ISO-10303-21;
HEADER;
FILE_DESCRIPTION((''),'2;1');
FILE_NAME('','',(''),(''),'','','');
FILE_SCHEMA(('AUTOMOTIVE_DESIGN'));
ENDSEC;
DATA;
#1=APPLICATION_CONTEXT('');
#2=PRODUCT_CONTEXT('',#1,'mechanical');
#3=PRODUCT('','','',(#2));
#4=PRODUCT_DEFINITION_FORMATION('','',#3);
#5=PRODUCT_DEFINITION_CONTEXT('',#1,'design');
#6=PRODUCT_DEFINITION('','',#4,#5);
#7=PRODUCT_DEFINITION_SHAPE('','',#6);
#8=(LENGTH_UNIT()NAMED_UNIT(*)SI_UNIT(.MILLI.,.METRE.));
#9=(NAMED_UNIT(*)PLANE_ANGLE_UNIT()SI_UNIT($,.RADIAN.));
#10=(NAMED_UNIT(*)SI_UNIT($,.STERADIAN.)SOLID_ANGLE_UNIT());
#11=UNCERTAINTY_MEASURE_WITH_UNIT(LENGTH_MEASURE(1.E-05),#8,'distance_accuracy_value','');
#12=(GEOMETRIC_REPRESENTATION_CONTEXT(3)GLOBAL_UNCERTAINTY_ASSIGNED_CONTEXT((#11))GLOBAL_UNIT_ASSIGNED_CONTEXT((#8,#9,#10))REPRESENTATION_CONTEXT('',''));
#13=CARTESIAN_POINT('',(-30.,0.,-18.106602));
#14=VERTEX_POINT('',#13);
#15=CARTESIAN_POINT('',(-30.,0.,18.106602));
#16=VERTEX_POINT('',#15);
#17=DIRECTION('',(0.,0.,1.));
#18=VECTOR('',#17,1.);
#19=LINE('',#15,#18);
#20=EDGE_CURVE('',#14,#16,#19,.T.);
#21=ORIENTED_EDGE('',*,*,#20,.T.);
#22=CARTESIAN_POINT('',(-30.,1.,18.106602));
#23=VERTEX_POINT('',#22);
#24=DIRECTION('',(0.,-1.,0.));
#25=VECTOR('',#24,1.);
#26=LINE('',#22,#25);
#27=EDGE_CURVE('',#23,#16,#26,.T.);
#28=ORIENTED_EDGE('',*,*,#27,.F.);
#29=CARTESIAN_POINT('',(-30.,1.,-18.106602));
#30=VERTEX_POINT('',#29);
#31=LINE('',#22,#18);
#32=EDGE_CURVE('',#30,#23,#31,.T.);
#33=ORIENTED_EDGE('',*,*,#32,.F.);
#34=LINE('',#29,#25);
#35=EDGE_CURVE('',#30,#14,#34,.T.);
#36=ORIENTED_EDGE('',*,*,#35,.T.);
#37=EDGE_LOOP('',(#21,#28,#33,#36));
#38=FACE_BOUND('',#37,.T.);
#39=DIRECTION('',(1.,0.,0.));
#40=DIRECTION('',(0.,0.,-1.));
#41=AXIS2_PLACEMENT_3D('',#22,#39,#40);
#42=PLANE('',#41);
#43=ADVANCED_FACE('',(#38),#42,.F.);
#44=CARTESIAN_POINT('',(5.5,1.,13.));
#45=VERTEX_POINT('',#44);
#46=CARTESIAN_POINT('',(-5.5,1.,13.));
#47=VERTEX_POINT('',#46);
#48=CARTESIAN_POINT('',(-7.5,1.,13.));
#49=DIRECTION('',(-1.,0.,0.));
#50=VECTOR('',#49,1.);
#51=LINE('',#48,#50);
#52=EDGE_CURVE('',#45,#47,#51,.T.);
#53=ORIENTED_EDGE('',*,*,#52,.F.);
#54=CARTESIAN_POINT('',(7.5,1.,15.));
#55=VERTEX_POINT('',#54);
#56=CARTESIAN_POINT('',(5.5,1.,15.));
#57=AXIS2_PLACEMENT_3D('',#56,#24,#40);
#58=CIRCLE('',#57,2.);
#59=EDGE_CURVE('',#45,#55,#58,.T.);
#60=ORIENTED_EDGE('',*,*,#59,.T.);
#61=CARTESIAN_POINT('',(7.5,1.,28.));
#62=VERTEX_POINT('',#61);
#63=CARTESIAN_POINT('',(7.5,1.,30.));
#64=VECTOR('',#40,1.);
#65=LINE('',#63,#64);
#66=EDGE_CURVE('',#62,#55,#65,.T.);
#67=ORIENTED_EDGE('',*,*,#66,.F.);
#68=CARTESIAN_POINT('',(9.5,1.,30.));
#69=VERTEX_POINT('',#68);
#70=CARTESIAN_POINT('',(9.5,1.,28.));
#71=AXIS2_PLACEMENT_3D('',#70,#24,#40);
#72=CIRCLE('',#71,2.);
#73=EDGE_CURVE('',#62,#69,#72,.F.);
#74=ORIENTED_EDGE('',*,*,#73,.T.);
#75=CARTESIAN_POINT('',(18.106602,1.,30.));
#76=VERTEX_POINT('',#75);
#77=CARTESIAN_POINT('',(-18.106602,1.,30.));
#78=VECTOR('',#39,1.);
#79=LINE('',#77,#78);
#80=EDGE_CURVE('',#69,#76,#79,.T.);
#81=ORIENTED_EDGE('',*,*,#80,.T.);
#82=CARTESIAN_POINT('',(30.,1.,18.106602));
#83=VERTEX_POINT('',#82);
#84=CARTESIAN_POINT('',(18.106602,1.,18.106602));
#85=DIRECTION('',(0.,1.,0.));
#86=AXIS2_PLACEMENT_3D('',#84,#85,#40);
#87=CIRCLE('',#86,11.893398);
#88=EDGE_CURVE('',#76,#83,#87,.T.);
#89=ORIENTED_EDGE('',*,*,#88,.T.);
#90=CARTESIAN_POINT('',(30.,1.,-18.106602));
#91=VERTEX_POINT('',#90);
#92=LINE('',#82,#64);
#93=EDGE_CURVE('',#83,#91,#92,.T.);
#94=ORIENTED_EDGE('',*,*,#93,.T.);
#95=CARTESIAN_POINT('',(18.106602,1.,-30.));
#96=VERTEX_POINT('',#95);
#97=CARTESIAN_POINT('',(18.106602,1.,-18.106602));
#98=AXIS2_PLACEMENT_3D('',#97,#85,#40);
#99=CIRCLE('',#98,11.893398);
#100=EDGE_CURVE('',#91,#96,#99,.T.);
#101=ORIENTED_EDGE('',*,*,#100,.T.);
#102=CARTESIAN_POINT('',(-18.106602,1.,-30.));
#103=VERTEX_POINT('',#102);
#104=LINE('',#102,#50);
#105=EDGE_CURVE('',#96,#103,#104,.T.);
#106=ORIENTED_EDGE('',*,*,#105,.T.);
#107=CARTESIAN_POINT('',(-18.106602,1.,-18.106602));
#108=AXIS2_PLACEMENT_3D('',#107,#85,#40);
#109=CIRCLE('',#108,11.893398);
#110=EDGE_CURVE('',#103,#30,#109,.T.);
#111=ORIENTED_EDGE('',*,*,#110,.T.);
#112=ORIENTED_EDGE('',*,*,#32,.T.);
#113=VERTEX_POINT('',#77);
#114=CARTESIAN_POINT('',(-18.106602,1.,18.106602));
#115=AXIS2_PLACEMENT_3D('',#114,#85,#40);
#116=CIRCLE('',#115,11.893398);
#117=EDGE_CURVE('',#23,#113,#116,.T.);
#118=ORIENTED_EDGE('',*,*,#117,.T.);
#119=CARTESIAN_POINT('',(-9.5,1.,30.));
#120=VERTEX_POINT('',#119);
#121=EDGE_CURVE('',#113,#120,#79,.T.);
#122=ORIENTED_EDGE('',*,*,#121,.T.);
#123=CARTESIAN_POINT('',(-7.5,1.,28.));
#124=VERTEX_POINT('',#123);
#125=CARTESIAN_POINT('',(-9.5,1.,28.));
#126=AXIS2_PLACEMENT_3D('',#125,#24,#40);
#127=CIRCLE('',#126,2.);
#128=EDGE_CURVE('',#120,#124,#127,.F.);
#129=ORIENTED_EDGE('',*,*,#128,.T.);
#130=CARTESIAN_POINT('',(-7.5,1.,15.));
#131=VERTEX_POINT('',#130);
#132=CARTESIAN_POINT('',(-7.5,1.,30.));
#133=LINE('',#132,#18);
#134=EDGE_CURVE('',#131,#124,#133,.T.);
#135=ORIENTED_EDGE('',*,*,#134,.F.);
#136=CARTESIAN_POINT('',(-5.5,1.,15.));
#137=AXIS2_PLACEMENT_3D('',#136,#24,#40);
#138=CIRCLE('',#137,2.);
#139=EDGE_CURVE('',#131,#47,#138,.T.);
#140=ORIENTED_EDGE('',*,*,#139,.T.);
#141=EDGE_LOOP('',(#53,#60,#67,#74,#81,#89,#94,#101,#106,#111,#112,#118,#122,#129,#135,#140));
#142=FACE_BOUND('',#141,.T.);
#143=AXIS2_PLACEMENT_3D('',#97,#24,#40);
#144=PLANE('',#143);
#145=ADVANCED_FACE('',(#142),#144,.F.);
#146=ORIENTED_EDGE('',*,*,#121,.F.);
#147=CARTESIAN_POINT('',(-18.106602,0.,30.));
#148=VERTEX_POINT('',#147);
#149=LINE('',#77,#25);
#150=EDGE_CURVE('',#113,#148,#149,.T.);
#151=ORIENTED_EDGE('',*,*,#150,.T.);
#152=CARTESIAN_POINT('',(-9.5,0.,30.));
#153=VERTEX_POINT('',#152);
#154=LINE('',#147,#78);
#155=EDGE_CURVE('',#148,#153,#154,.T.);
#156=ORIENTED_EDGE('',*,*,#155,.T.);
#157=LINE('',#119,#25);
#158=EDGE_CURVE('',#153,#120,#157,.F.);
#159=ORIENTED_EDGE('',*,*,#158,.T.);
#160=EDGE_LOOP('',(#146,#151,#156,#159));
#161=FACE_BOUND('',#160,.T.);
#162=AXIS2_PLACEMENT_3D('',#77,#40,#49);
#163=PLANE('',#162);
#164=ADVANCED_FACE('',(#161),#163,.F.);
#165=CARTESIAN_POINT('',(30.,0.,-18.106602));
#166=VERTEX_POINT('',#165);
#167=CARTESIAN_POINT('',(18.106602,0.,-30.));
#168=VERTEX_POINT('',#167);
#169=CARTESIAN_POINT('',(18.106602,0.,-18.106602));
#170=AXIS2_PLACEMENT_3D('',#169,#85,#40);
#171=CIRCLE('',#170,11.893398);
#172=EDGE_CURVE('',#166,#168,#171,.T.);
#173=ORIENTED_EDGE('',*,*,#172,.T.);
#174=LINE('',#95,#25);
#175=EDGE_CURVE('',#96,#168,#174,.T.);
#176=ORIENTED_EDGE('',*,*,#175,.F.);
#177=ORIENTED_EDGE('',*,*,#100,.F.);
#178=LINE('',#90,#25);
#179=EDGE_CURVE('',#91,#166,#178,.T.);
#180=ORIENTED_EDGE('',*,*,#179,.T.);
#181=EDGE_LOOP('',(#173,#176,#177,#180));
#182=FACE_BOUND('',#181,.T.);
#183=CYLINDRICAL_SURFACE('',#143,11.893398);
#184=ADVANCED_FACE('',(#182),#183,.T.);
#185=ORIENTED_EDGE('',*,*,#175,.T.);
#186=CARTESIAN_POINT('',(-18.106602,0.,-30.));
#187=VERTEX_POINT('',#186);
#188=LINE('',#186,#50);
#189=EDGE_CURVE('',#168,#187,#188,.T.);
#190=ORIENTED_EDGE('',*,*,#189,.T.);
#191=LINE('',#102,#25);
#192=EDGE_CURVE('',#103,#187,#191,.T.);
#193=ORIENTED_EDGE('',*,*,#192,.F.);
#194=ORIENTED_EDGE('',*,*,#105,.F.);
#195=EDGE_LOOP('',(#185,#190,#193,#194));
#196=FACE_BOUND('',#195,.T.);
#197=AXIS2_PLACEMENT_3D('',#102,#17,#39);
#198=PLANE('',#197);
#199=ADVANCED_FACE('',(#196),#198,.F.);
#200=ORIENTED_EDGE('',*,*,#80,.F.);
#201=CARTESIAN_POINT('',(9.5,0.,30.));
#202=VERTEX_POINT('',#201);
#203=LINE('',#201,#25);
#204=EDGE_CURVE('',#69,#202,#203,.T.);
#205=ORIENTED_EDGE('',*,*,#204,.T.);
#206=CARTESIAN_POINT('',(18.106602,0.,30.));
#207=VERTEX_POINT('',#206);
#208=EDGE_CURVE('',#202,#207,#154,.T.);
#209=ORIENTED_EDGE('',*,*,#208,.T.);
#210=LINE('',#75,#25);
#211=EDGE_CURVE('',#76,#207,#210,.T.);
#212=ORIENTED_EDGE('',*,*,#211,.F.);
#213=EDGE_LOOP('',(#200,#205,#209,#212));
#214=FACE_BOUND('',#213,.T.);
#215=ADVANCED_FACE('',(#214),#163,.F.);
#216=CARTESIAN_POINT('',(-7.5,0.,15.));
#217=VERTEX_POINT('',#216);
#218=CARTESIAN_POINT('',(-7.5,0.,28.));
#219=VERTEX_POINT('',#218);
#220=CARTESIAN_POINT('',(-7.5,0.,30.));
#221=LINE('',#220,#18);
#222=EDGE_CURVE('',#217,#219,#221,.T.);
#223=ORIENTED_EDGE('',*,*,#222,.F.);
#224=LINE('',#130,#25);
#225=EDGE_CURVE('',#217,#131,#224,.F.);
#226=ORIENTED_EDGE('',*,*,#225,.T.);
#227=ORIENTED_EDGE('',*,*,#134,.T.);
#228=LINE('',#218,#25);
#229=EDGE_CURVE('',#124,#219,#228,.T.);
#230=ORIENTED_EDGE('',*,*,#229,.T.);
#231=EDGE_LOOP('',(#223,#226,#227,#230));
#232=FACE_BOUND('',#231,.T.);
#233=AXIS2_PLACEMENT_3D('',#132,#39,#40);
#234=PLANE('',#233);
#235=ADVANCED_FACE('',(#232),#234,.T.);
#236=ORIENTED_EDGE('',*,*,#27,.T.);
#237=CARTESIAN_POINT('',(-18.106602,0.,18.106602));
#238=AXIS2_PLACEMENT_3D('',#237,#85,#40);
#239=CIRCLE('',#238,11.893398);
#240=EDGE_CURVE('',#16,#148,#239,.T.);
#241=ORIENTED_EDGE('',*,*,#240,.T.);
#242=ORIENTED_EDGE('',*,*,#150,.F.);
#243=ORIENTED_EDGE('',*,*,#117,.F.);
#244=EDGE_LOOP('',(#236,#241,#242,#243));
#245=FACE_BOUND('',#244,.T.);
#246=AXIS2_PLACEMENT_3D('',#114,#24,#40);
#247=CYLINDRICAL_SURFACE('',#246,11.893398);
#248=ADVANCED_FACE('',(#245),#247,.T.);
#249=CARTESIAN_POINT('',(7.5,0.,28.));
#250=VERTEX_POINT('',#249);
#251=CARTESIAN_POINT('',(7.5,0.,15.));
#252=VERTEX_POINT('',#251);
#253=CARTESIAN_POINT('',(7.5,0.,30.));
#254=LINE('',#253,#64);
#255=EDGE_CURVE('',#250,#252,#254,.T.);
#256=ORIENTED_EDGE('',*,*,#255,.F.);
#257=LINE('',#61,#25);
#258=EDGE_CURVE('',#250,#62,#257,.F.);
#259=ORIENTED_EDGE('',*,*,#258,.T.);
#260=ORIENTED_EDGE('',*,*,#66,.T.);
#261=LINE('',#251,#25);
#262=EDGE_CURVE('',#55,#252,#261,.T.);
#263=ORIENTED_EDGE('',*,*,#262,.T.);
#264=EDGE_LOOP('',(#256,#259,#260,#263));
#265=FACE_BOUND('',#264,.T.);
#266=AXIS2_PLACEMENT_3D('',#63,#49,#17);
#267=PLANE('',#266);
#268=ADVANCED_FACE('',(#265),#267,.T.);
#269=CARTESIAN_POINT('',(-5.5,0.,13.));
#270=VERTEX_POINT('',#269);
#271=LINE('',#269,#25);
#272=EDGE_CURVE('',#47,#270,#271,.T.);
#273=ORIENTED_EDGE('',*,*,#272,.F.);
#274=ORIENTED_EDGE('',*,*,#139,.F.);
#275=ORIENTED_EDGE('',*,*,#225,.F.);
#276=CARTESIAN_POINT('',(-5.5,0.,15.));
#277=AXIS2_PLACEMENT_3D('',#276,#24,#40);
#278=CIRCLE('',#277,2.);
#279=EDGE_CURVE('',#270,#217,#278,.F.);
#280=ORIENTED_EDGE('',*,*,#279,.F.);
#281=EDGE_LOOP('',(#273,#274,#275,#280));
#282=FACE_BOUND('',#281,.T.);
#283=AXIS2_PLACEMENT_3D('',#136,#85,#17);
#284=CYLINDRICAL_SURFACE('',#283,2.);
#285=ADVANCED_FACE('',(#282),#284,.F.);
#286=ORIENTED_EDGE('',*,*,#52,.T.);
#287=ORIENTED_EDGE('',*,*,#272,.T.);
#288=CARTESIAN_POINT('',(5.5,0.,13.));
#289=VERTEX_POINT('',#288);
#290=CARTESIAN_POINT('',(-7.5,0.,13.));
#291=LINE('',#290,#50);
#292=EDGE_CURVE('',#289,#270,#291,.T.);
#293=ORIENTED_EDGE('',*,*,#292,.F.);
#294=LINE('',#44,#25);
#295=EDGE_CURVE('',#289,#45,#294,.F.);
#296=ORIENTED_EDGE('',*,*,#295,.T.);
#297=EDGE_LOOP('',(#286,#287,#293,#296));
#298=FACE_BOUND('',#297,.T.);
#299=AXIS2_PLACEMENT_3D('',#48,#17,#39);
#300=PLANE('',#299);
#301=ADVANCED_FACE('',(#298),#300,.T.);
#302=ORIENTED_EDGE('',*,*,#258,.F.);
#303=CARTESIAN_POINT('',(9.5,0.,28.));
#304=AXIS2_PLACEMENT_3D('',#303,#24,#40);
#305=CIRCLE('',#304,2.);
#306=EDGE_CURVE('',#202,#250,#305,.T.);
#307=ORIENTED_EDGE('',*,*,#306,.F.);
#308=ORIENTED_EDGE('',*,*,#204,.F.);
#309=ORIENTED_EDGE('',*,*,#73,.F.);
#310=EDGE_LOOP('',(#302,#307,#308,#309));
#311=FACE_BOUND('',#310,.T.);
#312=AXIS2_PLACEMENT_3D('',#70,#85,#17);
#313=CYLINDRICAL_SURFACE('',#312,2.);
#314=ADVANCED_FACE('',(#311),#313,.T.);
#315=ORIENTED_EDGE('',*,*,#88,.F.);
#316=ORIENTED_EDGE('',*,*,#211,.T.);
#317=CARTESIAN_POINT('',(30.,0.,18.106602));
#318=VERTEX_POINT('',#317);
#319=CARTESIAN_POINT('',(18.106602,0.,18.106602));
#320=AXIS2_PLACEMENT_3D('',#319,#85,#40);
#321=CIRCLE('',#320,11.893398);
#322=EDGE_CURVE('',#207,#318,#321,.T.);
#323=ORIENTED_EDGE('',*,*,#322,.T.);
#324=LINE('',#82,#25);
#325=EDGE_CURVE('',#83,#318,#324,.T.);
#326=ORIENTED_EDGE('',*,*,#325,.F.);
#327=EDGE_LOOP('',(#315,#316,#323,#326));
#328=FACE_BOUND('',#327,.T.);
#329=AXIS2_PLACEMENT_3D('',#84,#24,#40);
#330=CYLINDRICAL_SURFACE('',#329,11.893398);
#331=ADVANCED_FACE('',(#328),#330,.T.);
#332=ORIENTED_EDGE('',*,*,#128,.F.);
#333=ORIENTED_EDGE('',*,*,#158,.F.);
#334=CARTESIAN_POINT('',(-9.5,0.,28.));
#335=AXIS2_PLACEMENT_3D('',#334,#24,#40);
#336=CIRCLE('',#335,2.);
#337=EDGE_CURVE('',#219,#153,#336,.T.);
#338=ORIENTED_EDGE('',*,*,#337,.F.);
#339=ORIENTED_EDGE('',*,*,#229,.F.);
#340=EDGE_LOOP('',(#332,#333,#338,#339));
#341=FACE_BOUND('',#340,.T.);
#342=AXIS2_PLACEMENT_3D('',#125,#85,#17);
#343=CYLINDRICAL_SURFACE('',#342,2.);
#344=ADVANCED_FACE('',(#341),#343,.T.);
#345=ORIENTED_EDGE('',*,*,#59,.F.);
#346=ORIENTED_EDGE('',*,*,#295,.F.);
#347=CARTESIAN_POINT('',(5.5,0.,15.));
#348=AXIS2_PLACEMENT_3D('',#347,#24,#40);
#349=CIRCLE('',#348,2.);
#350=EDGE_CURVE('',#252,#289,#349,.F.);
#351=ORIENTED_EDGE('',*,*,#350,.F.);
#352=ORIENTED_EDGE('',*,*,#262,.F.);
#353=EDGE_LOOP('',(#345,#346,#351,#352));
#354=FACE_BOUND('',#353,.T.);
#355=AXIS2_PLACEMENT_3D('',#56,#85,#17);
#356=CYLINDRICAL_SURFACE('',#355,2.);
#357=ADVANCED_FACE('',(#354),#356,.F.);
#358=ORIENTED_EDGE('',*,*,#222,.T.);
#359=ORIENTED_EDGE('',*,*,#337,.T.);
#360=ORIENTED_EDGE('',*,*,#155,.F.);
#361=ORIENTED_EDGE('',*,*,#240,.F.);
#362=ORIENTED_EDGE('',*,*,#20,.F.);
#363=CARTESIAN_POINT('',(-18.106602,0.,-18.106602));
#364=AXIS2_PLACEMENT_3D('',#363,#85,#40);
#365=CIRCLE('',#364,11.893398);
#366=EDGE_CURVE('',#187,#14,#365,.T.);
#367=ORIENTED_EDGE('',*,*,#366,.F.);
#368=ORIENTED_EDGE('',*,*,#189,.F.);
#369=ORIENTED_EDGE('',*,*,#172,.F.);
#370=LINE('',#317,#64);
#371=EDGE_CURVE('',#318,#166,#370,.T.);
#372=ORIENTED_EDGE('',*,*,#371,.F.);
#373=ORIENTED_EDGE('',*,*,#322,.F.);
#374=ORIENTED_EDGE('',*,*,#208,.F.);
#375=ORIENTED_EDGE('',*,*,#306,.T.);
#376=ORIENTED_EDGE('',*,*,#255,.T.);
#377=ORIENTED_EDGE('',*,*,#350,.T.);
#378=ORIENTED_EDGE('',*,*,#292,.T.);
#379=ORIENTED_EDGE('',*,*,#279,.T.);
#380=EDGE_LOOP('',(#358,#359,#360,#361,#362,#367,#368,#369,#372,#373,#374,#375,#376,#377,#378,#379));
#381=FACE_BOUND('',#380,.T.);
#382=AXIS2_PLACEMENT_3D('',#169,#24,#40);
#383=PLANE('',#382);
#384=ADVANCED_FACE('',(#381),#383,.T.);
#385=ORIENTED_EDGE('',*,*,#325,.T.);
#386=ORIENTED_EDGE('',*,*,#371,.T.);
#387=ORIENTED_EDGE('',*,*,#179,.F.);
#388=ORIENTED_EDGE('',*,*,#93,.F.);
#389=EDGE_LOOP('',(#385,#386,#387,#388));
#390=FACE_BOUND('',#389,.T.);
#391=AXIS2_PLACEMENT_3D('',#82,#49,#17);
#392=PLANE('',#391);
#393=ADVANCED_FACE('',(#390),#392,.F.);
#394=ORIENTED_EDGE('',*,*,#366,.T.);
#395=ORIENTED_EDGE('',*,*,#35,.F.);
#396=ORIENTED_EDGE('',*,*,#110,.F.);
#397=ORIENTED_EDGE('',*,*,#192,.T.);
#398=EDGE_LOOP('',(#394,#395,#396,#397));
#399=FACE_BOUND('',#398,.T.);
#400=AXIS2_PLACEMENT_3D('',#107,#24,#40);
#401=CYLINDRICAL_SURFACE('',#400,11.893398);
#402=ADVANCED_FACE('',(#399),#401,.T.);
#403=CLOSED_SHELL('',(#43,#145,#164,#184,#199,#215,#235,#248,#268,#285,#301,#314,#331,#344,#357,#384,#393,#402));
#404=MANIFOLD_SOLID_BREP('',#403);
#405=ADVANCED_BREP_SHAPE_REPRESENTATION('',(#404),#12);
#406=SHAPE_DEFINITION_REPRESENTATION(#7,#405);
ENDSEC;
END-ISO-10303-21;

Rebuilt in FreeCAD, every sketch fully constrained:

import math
import FreeCAD as App
import Part
import Sketcher
from FreeCAD import Vector


def edges_at(feature, points):
    """Names of the edges that pass closest to the given points."""
    edges = feature.Shape.Edges
    near = lambda p: min(range(len(edges)), key=lambda i: edges[i].distToShape(Part.Vertex(*p))[0])
    return sorted({f"Edge{near(p) + 1}" for p in points})

doc = App.newDocument("Part")
params = doc.addObject("Spreadsheet::Sheet", "Params")
for row, (alias, value) in enumerate([
    ("pad1_length", "1 mm"),
    ("sketch2_width", "15 mm"),
    ("sketch2_height", "17 mm"),
    ("pocket1_length", "1 mm"),
    ("fillet_radius", "2 mm"),
], start=1):
    params.set(f"A{row}", alias)
    params.set(f"B{row}", "=" + value)
    params.setAlias(f"B{row}", alias)

body = doc.addObject("PartDesign::Body", "Body")

# Sketch on XZ plane
sketch1 = body.newObject("Sketcher::SketchObject", "Sketch")
sketch1.AttachmentSupport = (doc.getObject("XZ_Plane"), [""])
sketch1.MapMode = "FlatFace"
sketch1.addGeometry([
    Part.LineSegment(Vector(-18, 30, 0), Vector(18, 30, 0)),  # 0
    Part.ArcOfCircle(Part.Circle(Vector(18, 18, 0), Vector(0, 0, 1), 12), math.radians(0), math.radians(90)),  # 1
    Part.LineSegment(Vector(30, 18, 0), Vector(30, -18, 0)),  # 2
    Part.ArcOfCircle(Part.Circle(Vector(18, -18, 0), Vector(0, 0, 1), 12), math.radians(-90), math.radians(0)),  # 3
    Part.LineSegment(Vector(18, -30, 0), Vector(-18, -30, 0)),  # 4
    Part.ArcOfCircle(Part.Circle(Vector(-18, -18, 0), Vector(0, 0, 1), 12), math.radians(-180), math.radians(-90)),  # 5
    Part.LineSegment(Vector(-30, -18, 0), Vector(-30, 18, 0)),  # 6
    Part.ArcOfCircle(Part.Circle(Vector(-18, 18, 0), Vector(0, 0, 1), 12), math.radians(90), math.radians(180)),  # 7
], False)
sketch1.addConstraint([
    Sketcher.Constraint("Tangent", 0, 2, 1, 2),
    Sketcher.Constraint("Tangent", 1, 1, 2, 1),
    Sketcher.Constraint("Tangent", 2, 2, 3, 2),
    Sketcher.Constraint("Tangent", 3, 1, 4, 1),
    Sketcher.Constraint("Tangent", 4, 2, 5, 2),
    Sketcher.Constraint("Tangent", 5, 1, 6, 1),
    Sketcher.Constraint("Tangent", 6, 2, 7, 2),
    Sketcher.Constraint("Tangent", 7, 1, 0, 1),
    Sketcher.Constraint("Horizontal", 0),
    Sketcher.Constraint("Vertical", 2),
    Sketcher.Constraint("Horizontal", 4),
    Sketcher.Constraint("Vertical", 6),
    Sketcher.Constraint("Equal", 1, 3),
    Sketcher.Constraint("Equal", 3, 5),
    Sketcher.Constraint("Equal", 5, 7),
    Sketcher.Constraint("Symmetric", 1, 3, 5, 3, -1, 1),
    Sketcher.Constraint("Equal", 4, 2),
    Sketcher.Constraint("DistanceY", -1, 1, 0, 2, 30.0),
    Sketcher.Constraint("Radius", 1, 11.893398),
])
pad1 = body.newObject("PartDesign::Pad", "Pad")
pad1.Profile = sketch1
pad1.setExpression("Length", "Params.pad1_length")
pad1.Reversed = True

# Sketch on XZ plane
sketch2 = body.newObject("Sketcher::SketchObject", "Sketch001")
sketch2.AttachmentSupport = (doc.getObject("XZ_Plane"), [""])
sketch2.MapMode = "FlatFace"
sketch2.addGeometry([
    Part.LineSegment(Vector(-8, 13, 0), Vector(-8, 30, 0)),
    Part.LineSegment(Vector(-8, 30, 0), Vector(8, 30, 0)),
    Part.LineSegment(Vector(8, 30, 0), Vector(8, 13, 0)),
    Part.LineSegment(Vector(8, 13, 0), Vector(-8, 13, 0)),
], False)
sketch2.addConstraint([
    Sketcher.Constraint("Coincident", 0, 2, 1, 1),
    Sketcher.Constraint("Coincident", 1, 2, 2, 1),
    Sketcher.Constraint("Coincident", 2, 2, 3, 1),
    Sketcher.Constraint("Coincident", 3, 2, 0, 1),
    Sketcher.Constraint("Vertical", 0),
    Sketcher.Constraint("Horizontal", 1),
    Sketcher.Constraint("Vertical", 2),
    Sketcher.Constraint("Horizontal", 3),
    Sketcher.Constraint("DistanceX", 1, 1, 1, 2, 15.0),
    Sketcher.Constraint("DistanceY", 0, 1, 0, 2, 17.0),
    Sketcher.Constraint("DistanceY", -1, 1, 0, 2, 30.0),
    Sketcher.Constraint("DistanceX", 0, 2, -1, 1, 7.5),
])
sketch2.setExpression("Constraints[8]", "Params.sketch2_width")
sketch2.setExpression("Constraints[9]", "Params.sketch2_height")
pocket1 = body.newObject("PartDesign::Pocket", "Pocket")
pocket1.Profile = sketch2
pocket1.setExpression("Length", "Params.pocket1_length")
doc.recompute()

fillet = body.newObject("PartDesign::Fillet", "Fillet")
fillet.Base = (pocket1, edges_at(pocket1, [
    (-7.5, 0.5, 13),
    (-7.5, 0.5, 30),
    (7.5, 0.5, 30),
    (7.5, 0.5, 13),
]))
fillet.setExpression("Radius", "Params.fillet_radius")

doc.recompute()
